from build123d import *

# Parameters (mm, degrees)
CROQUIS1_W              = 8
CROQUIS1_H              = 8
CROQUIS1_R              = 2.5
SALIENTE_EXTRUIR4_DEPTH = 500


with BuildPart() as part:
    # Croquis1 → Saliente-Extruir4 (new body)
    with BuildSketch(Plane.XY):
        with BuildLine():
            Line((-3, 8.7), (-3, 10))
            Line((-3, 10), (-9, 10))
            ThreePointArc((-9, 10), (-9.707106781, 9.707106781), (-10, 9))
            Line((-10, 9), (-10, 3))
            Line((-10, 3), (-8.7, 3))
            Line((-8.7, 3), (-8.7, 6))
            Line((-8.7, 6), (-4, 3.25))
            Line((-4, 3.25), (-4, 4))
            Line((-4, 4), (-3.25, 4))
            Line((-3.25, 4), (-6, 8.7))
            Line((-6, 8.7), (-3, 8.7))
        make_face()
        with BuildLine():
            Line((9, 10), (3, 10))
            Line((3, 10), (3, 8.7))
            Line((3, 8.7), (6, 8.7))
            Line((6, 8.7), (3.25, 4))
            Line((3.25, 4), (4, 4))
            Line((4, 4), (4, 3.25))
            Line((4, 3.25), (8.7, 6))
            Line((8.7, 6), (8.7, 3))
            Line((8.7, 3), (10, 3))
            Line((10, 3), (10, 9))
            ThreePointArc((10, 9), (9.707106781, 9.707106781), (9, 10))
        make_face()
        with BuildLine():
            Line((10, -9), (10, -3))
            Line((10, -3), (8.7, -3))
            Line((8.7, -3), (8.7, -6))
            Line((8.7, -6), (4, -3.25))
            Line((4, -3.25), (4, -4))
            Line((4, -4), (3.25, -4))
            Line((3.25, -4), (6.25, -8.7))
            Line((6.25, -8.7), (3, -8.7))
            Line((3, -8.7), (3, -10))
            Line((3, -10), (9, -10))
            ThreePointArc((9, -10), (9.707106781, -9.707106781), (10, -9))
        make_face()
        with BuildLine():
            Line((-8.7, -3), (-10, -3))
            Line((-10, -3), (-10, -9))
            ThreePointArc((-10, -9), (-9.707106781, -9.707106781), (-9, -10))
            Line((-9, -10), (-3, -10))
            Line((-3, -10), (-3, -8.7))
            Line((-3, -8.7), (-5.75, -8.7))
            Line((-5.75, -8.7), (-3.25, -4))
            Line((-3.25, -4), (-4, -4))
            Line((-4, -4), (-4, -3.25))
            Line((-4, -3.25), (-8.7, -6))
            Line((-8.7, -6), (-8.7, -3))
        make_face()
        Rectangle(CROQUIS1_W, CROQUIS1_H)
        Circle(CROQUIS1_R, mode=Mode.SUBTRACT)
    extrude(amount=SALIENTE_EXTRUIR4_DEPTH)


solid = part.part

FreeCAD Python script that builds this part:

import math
import FreeCAD as App
import Part
import Sketcher
Q = App.Units.Quantity

doc = App.newDocument("Part")
params = doc.addObject("Spreadsheet::Sheet", "Params")
for row, (alias, value) in enumerate([
    ("sketch1_diameter", "5 mm"),
    ("sketch1_radius", "1 mm"),
    ("sketch1_width", "6 mm"),
    ("sketch1_width2", "3 mm"),
    ("sketch1_width3", "1.3 mm"),
    ("pad1_length", "500 mm"),
], start=1):
    params.set(f"A{row}", alias)
    params.set(f"B{row}", "=" + value)
    params.setAlias(f"B{row}", alias)

body = doc.addObject("PartDesign::Body", "Body")

# Sketch on XY plane
sketch1 = body.newObject("Sketcher::SketchObject", "Sketch")
sketch1.AttachmentSupport = (doc.getObject("XY_Plane"), [""])
sketch1.MapMode = "FlatFace"
sketch1.addGeometry(Part.LineSegment(App.Vector(-3, 8.7, 0), App.Vector(-3, 10, 0)), False)
sketch1.addGeometry(Part.LineSegment(App.Vector(-3, 10, 0), App.Vector(-9, 10, 0)), False)
sketch1.addGeometry(Part.ArcOfCircle(Part.Circle(App.Vector(-9, 9, 0), App.Vector(0, 0, 1), 1), math.radians(90), math.radians(180)), False)
sketch1.addGeometry(Part.LineSegment(App.Vector(-10, 9, 0), App.Vector(-10, 3, 0)), False)
sketch1.addGeometry(Part.LineSegment(App.Vector(-10, 3, 0), App.Vector(-8.7, 3, 0)), False)
sketch1.addGeometry(Part.LineSegment(App.Vector(-8.7, 3, 0), App.Vector(-8.7, 6, 0)), False)
sketch1.addGeometry(Part.LineSegment(App.Vector(-8.7, 6, 0), App.Vector(-4, 3.25, 0)), False)
sketch1.addGeometry(Part.LineSegment(App.Vector(-4, 3.25, 0), App.Vector(-4, -3.25, 0)), False)
sketch1.addGeometry(Part.LineSegment(App.Vector(-4, -3.25, 0), App.Vector(-8.7, -6, 0)), False)
sketch1.addGeometry(Part.LineSegment(App.Vector(-8.7, -6, 0), App.Vector(-8.7, -3, 0)), False)
sketch1.addGeometry(Part.LineSegment(App.Vector(-8.7, -3, 0), App.Vector(-10, -3, 0)), False)
sketch1.addGeometry(Part.LineSegment(App.Vector(-10, -3, 0), App.Vector(-10, -9, 0)), False)
sketch1.addGeometry(Part.ArcOfCircle(Part.Circle(App.Vector(-9, -9, 0), App.Vector(0, 0, 1), 1), math.radians(-180), math.radians(-90)), False)
sketch1.addGeometry(Part.LineSegment(App.Vector(-9, -10, 0), App.Vector(-3, -10, 0)), False)
sketch1.addGeometry(Part.LineSegment(App.Vector(-3, -10, 0), App.Vector(-3, -8.7, 0)), False)
sketch1.addGeometry(Part.LineSegment(App.Vector(-3, -8.7, 0), App.Vector(-5.75, -8.7, 0)), False)
sketch1.addGeometry(Part.LineSegment(App.Vector(-5.75, -8.7, 0), App.Vector(-3.25, -4, 0)), False)
sketch1.addGeometry(Part.LineSegment(App.Vector(-3.25, -4, 0), App.Vector(3.25, -4, 0)), False)
sketch1.addGeometry(Part.LineSegment(App.Vector(3.25, -4, 0), App.Vector(6.25, -8.7, 0)), False)
sketch1.addGeometry(Part.LineSegment(App.Vector(6.25, -8.7, 0), App.Vector(3, -8.7, 0)), False)
sketch1.addGeometry(Part.LineSegment(App.Vector(3, -8.7, 0), App.Vector(3, -10, 0)), False)
sketch1.addGeometry(Part.LineSegment(App.Vector(3, -10, 0), App.Vector(9, -10, 0)), False)
sketch1.addGeometry(Part.ArcOfCircle(Part.Circle(App.Vector(9, -9, 0), App.Vector(0, 0, 1), 1), math.radians(-90), math.radians(0)), False)
sketch1.addGeometry(Part.LineSegment(App.Vector(10, -9, 0), App.Vector(10, -3, 0)), False)
sketch1.addGeometry(Part.LineSegment(App.Vector(10, -3, 0), App.Vector(8.7, -3, 0)), False)
sketch1.addGeometry(Part.LineSegment(App.Vector(8.7, -3, 0), App.Vector(8.7, -6, 0)), False)
sketch1.addGeometry(Part.LineSegment(App.Vector(8.7, -6, 0), App.Vector(4, -3.25, 0)), False)
sketch1.addGeometry(Part.LineSegment(App.Vector(4, -3.25, 0), App.Vector(4, 3.25, 0)), False)
sketch1.addGeometry(Part.LineSegment(App.Vector(4, 3.25, 0), App.Vector(8.7, 6, 0)), False)
sketch1.addGeometry(Part.LineSegment(App.Vector(8.7, 6, 0), App.Vector(8.7, 3, 0)), False)
sketch1.addGeometry(Part.LineSegment(App.Vector(8.7, 3, 0), App.Vector(10, 3, 0)), False)
sketch1.addGeometry(Part.LineSegment(App.Vector(10, 3, 0), App.Vector(10, 9, 0)), False)
sketch1.addGeometry(Part.ArcOfCircle(Part.Circle(App.Vector(9, 9, 0), App.Vector(0, 0, 1), 1), math.radians(0), math.radians(90)), False)
sketch1.addGeometry(Part.LineSegment(App.Vector(9, 10, 0), App.Vector(3, 10, 0)), False)
sketch1.addGeometry(Part.LineSegment(App.Vector(3, 10, 0), App.Vector(3, 8.7, 0)), False)
sketch1.addGeometry(Part.LineSegment(App.Vector(3, 8.7, 0), App.Vector(6, 8.7, 0)), False)
sketch1.addGeometry(Part.LineSegment(App.Vector(6, 8.7, 0), App.Vector(3.25, 4, 0)), False)
sketch1.addGeometry(Part.LineSegment(App.Vector(3.25, 4, 0), App.Vector(-3.25, 4, 0)), False)
sketch1.addGeometry(Part.LineSegment(App.Vector(-3.25, 4, 0), App.Vector(-6, 8.7, 0)), False)
sketch1.addGeometry(Part.LineSegment(App.Vector(-6, 8.7, 0), App.Vector(-3, 8.7, 0)), False)
sketch1.addGeometry(Part.Circle(App.Vector(0, 0, 0), App.Vector(0, 0, 1), 2.5), False)
sketch1.addConstraint(Sketcher.Constraint("Coincident", 0, 2, 1, 1))
sketch1.addConstraint(Sketcher.Constraint("Tangent", 1, 2, 2, 1))
sketch1.addConstraint(Sketcher.Constraint("Tangent", 2, 2, 3, 1))
sketch1.addConstraint(Sketcher.Constraint("Coincident", 3, 2, 4, 1))
sketch1.addConstraint(Sketcher.Constraint("Coincident", 4, 2, 5, 1))
sketch1.addConstraint(Sketcher.Constraint("Coincident", 5, 2, 6, 1))
sketch1.addConstraint(Sketcher.Constraint("Coincident", 6, 2, 7, 1))
sketch1.addConstraint(Sketcher.Constraint("Coincident", 7, 2, 8, 1))
sketch1.addConstraint(Sketcher.Constraint("Coincident", 8, 2, 9, 1))
sketch1.addConstraint(Sketcher.Constraint("Coincident", 9, 2, 10, 1))
sketch1.addConstraint(Sketcher.Constraint("Coincident", 10, 2, 11, 1))
sketch1.addConstraint(Sketcher.Constraint("Tangent", 11, 2, 12, 1))
sketch1.addConstraint(Sketcher.Constraint("Tangent", 12, 2, 13, 1))
sketch1.addConstraint(Sketcher.Constraint("Coincident", 13, 2, 14, 1))
sketch1.addConstraint(Sketcher.Constraint("Coincident", 14, 2, 15, 1))
sketch1.addConstraint(Sketcher.Constraint("Coincident", 15, 2, 16, 1))
sketch1.addConstraint(Sketcher.Constraint("Coincident", 16, 2, 17, 1))
sketch1.addConstraint(Sketcher.Constraint("Coincident", 17, 2, 18, 1))
sketch1.addConstraint(Sketcher.Constraint("Coincident", 18, 2, 19, 1))
sketch1.addConstraint(Sketcher.Constraint("Coincident", 19, 2, 20, 1))
sketch1.addConstraint(Sketcher.Constraint("Coincident", 20, 2, 21, 1))
sketch1.addConstraint(Sketcher.Constraint("Tangent", 21, 2, 22, 1))
sketch1.addConstraint(Sketcher.Constraint("Tangent", 22, 2, 23, 1))
sketch1.addConstraint(Sketcher.Constraint("Coincident", 23, 2, 24, 1))
sketch1.addConstraint(Sketcher.Constraint("Coincident", 24, 2, 25, 1))
sketch1.addConstraint(Sketcher.Constraint("Coincident", 25, 2, 26, 1))
sketch1.addConstraint(Sketcher.Constraint("Coincident", 26, 2, 27, 1))
sketch1.addConstraint(Sketcher.Constraint("Coincident", 27, 2, 28, 1))
sketch1.addConstraint(Sketcher.Constraint("Coincident", 28, 2, 29, 1))
sketch1.addConstraint(Sketcher.Constraint("Coincident", 29, 2, 30, 1))
sketch1.addConstraint(Sketcher.Constraint("Coincident", 30, 2, 31, 1))
sketch1.addConstraint(Sketcher.Constraint("Tangent", 31, 2, 32, 1))
sketch1.addConstraint(Sketcher.Constraint("Tangent", 32, 2, 33, 1))
sketch1.addConstraint(Sketcher.Constraint("Coincident", 33, 2, 34, 1))
sketch1.addConstraint(Sketcher.Constraint("Coincident", 34, 2, 35, 1))
sketch1.addConstraint(Sketcher.Constraint("Coincident", 35, 2, 36, 1))
sketch1.addConstraint(Sketcher.Constraint("Coincident", 36, 2, 37, 1))
sketch1.addConstraint(Sketcher.Constraint("Coincident", 37, 2, 38, 1))
sketch1.addConstraint(Sketcher.Constraint("Coincident", 38, 2, 39, 1))
sketch1.addConstraint(Sketcher.Constraint("Coincident", 39, 2, 0, 1))
sketch1.addConstraint(Sketcher.Constraint("Vertical", 0))
sketch1.addConstraint(Sketcher.Constraint("Horizontal", 1))
sketch1.addConstraint(Sketcher.Constraint("Vertical", 3))
sketch1.addConstraint(Sketcher.Constraint("Horizontal", 4))
sketch1.addConstraint(Sketcher.Constraint("Vertical", 5))
sketch1.addConstraint(Sketcher.Constraint("Vertical", 7))
sketch1.addConstraint(Sketcher.Constraint("Vertical", 9))
sketch1.addConstraint(Sketcher.Constraint("Horizontal", 10))
sketch1.addConstraint(Sketcher.Constraint("Vertical", 11))
sketch1.addConstraint(Sketcher.Constraint("Horizontal", 13))
sketch1.addConstraint(Sketcher.Constraint("Vertical", 14))
sketch1.addConstraint(Sketcher.Constraint("Horizontal", 15))
sketch1.addConstraint(Sketcher.Constraint("Horizontal", 17))
sketch1.addConstraint(Sketcher.Constraint("Horizontal", 19))
sketch1.addConstraint(Sketcher.Constraint("Vertical", 20))
sketch1.addConstraint(Sketcher.Constraint("Horizontal", 21))
sketch1.addConstraint(Sketcher.Constraint("Vertical", 23))
sketch1.addConstraint(Sketcher.Constraint("Horizontal", 24))
sketch1.addConstraint(Sketcher.Constraint("Vertical", 25))
sketch1.addConstraint(Sketcher.Constraint("Vertical", 27))
sketch1.addConstraint(Sketcher.Constraint("Vertical", 29))
sketch1.addConstraint(Sketcher.Constraint("Horizontal", 30))
sketch1.addConstraint(Sketcher.Constraint("Vertical", 31))
sketch1.addConstraint(Sketcher.Constraint("Horizontal", 33))
sketch1.addConstraint(Sketcher.Constraint("Vertical", 34))
sketch1.addConstraint(Sketcher.Constraint("Horizontal", 35))
sketch1.addConstraint(Sketcher.Constraint("Horizontal", 37))
sketch1.addConstraint(Sketcher.Constraint("Horizontal", 39))
sketch1.addConstraint(Sketcher.Constraint("Coincident", 40, 3, -1, 1))
sketch1.addConstraint(Sketcher.Constraint("Equal", 2, 12))
sketch1.addConstraint(Sketcher.Constraint("Equal", 12, 22))
sketch1.addConstraint(Sketcher.Constraint("Equal", 22, 32))
sketch1.addConstraint(Sketcher.Constraint("Symmetric", 2, 3, 22, 3, -1, 1))
sketch1.addConstraint(Sketcher.Constraint("Symmetric", 12, 3, 32, 3, -1, 1))
sketch1.addConstraint(Sketcher.Constraint("Symmetric", 4, 2, 24, 2, -1, 1))
sketch1.addConstraint(Sketcher.Constraint("Symmetric", 6, 2, 26, 2, -1, 1))
sketch1.addConstraint(Sketcher.Constraint("Symmetric", 8, 2, 28, 2, -1, 1))
sketch1.addConstraint(Sketcher.Constraint("Symmetric", 14, 2, 34, 2, -1, 1))
sketch1.addConstraint(Sketcher.Constraint("Symmetric", 16, 2, 36, 2, -1, 1))
sketch1.addConstraint(Sketcher.Constraint("Symmetric", 19, 2, 39, 2, -1, 1))
sketch1.addConstraint(Sketcher.Constraint("Symmetric", 12, 3, 22, 3, -2))
sketch1.addConstraint(Sketcher.Constraint("Symmetric", 14, 2, 19, 2, -2))
sketch1.addConstraint(Sketcher.Constraint("Symmetric", 9, 2, 24, 2, -2))
sketch1.addConstraint(Sketcher.Constraint("Parallel", 6, 26))
sketch1.addConstraint(Sketcher.Constraint("Parallel", 8, 28))
sketch1.addConstraint(Sketcher.Constraint("Perpendicular", 26, 36))
sketch1.addConstraint(Sketcher.Constraint("Perpendicular", 28, 38))
sketch1.addConstraint(Sketcher.Constraint("Horizontal", 8, 2, 25, 2))
sketch1.addConstraint(Sketcher.Constraint("Horizontal", 7, 2, 26, 2))
sketch1.addConstraint(Sketcher.Constraint("Horizontal", 4, 2, 29, 2))
sketch1.addConstraint(Sketcher.Constraint("Vertical", 17, 2, 36, 2))
sketch1.addConstraint(Sketcher.Constraint("Vertical", 16, 2, 37, 2))
sketch1.addConstraint(Sketcher.Constraint("Equal", 30, 0))
sketch1.addConstraint(Sketcher.Constraint("Equal", 33, 3))
sketch1.addConstraint(Sketcher.Constraint("Equal", 39, 5))
sketch1.addConstraint(Sketcher.Constraint("Equal", 37, 7))
sketch1.addConstraint(Sketcher.Constraint("Equal", 28, 36))
sketch1.addConstraint(Sketcher.Constraint("Diameter", 40, Q("5 mm")))
sketch1.addConstraint(Sketcher.Constraint("Radius", 2, Q("1 mm")))
sketch1.addConstraint(Sketcher.Constraint("DistanceX", 1, 2, 1, 1, Q("6 mm")))
sketch1.addConstraint(Sketcher.Constraint("DistanceX", 35, 1, 35, 2, Q("3 mm")))
sketch1.addConstraint(Sketcher.Constraint("DistanceX", 4, 1, 4, 2, Q("1.3 mm")))
sketch1.addConstraint(Sketcher.Constraint("DistanceX", 17, 1, 17, 2, Q("6.5 mm")))
sketch1.addConstraint(Sketcher.Constraint("DistanceX", 2, 3, -1, 1, Q("9 mm")))
sketch1.addConstraint(Sketcher.Constraint("DistanceX", 6, 2, -1, 1, Q("4 mm")))
sketch1.addConstraint(Sketcher.Constraint("DistanceX", 17, 2, 18, 2, Q("3 mm")))
sketch1.addConstraint(Sketcher.Constraint("DistanceX", 15, 2, 15, 1, Q("2.75 mm")))
sketch1.setExpression("Constraints[97]", "Params.sketch1_diameter")
sketch1.setExpression("Constraints[98]", "Params.sketch1_radius")
sketch1.setExpression("Constraints[99]", "Params.sketch1_width")
sketch1.setExpression("Constraints[100]", "Params.sketch1_width2")
sketch1.setExpression("Constraints[101]", "Params.sketch1_width3")
pad1 = body.newObject("PartDesign::Pad", "Pad")
pad1.Profile = sketch1
pad1.setExpression("Length", "Params.pad1_length")

doc.recompute()
